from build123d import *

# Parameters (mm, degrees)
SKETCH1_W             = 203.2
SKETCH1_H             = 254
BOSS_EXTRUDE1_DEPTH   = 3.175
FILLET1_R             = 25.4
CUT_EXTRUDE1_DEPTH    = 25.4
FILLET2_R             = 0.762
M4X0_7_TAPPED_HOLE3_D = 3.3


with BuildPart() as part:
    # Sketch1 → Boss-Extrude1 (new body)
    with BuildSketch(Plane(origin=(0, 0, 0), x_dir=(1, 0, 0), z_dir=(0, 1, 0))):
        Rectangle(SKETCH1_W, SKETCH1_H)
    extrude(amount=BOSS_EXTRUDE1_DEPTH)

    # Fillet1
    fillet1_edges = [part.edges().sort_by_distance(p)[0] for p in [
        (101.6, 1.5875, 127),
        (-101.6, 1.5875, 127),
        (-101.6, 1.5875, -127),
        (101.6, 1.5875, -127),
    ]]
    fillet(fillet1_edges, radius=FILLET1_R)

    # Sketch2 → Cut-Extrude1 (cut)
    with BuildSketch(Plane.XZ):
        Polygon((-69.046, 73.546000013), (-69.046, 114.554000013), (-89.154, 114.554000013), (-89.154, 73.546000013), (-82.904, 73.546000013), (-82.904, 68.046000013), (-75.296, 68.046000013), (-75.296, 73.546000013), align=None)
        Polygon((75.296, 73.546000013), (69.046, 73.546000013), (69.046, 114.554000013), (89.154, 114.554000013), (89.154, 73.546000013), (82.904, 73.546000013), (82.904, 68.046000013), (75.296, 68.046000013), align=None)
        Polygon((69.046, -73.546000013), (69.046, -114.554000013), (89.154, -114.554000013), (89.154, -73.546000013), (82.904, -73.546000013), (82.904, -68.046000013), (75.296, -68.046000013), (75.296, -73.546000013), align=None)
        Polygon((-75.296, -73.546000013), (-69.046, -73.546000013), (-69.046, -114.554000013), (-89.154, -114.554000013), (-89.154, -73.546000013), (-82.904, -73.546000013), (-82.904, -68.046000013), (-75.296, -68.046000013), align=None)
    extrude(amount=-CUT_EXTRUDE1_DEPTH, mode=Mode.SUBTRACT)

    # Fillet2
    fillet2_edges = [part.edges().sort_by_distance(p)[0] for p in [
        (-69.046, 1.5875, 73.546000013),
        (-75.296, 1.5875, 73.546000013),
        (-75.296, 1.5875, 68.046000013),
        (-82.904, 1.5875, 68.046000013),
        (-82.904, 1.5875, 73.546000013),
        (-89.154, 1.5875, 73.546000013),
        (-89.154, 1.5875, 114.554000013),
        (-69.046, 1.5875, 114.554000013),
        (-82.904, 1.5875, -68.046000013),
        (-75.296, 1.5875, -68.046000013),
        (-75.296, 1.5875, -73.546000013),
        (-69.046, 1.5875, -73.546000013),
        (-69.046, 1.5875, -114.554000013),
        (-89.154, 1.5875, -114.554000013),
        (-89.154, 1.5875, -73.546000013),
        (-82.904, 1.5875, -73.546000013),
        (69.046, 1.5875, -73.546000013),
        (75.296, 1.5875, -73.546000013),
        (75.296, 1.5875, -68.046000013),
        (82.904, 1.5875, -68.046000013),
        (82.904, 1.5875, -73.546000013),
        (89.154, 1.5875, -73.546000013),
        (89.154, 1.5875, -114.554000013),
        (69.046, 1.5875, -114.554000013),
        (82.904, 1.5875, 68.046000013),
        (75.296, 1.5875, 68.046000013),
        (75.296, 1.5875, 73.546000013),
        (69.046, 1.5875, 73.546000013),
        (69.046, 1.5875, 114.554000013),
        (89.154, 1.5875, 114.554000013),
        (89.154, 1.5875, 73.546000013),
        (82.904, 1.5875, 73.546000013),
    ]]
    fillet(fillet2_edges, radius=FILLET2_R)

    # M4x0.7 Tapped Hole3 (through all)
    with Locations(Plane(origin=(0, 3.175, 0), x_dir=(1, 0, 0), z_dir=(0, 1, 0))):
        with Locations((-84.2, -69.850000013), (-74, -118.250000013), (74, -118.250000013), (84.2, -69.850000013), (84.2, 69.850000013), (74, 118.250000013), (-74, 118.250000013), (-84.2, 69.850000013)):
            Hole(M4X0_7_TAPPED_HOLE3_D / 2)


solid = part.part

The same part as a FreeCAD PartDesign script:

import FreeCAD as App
import Part
import Sketcher
Q = App.Units.Quantity


def edges_at(feature, points):
    """Names of the edges that pass closest to the given points."""
    edges = feature.Shape.Edges
    near = lambda p: min(range(len(edges)), key=lambda i: edges[i].distToShape(Part.Vertex(*p))[0])
    return sorted({f"Edge{near(p) + 1}" for p in points})


def add_polygon(sketch, points):
    """Adds a closed chain of lines whose ends are joined by coincident constraints."""
    first, n = sketch.GeometryCount, len(points)
    for a, b in zip(points, points[1:] + points[:1]):
        sketch.addGeometry(Part.LineSegment(App.Vector(*a, 0), App.Vector(*b, 0)), False)
    for i in range(n):
        sketch.addConstraint(Sketcher.Constraint("Coincident", first + i, 2, first + (i + 1) % n, 1))

doc = App.newDocument("Part")
params = doc.addObject("Spreadsheet::Sheet", "Params")
for row, (alias, value) in enumerate([
    ("sketch1_width", "8 in"),
    ("sketch1_height", "10 in"),
    ("pad1_length", "0.125 in"),
    ("fillet_radius", "1 in"),
    ("pocket1_length", "1 in"),
    ("fillet2_radius", "0.03 in"),
    ("hole_diameter", "3.3 mm"),
], start=1):
    params.set(f"A{row}", alias)
    params.set(f"B{row}", "=" + value)
    params.setAlias(f"B{row}", alias)

body = doc.addObject("PartDesign::Body", "Body")

# Sketch on XZ plane
sketch1 = body.newObject("Sketcher::SketchObject", "Sketch")
sketch1.AttachmentSupport = (doc.getObject("XZ_Plane"), [""])
sketch1.MapMode = "FlatFace"
add_polygon(sketch1, [(-102, -127), (-102, 127), (102, 127), (102, -127)])  # lines 0-3
sketch1.addConstraint(Sketcher.Constraint("Vertical", 0))
sketch1.addConstraint(Sketcher.Constraint("Horizontal", 1))
sketch1.addConstraint(Sketcher.Constraint("Vertical", 2))
sketch1.addConstraint(Sketcher.Constraint("Horizontal", 3))
sketch1.addConstraint(Sketcher.Constraint("Symmetric", 0, 2, 2, 2, -1, 1))
sketch1.addConstraint(Sketcher.Constraint("DistanceX", 1, 1, 1, 2, Q("8 in")))
sketch1.addConstraint(Sketcher.Constraint("DistanceY", 0, 1, 0, 2, Q("10 in")))
sketch1.setExpression("Constraints[9]", "Params.sketch1_width")
sketch1.setExpression("Constraints[10]", "Params.sketch1_height")
pad1 = body.newObject("PartDesign::Pad", "Pad")
pad1.Profile = sketch1
pad1.setExpression("Length", "Params.pad1_length")
pad1.Reversed = True
doc.recompute()

fillet = body.newObject("PartDesign::Fillet", "Fillet")
fillet.Base = (pad1, edges_at(pad1, [
    (101.6, 1.587, 127),
    (-101.6, 1.587, 127),
    (-101.6, 1.587, -127),
    (101.6, 1.587, -127),
]))
fillet.setExpression("Radius", "Params.fillet_radius")

# Sketch on XZ plane
sketch2 = body.newObject("Sketcher::SketchObject", "Sketch001")
sketch2.AttachmentSupport = (doc.getObject("XZ_Plane"), [""])
sketch2.MapMode = "FlatFace"
add_polygon(sketch2, [(-69, 74), (-69, 115), (-89, 115), (-89, 74), (-83, 74), (-83, 68), (-75, 68), (-75, 74)])  # lines 0-7
add_polygon(sketch2, [(69, 74), (75, 74), (75, 68), (83, 68), (83, 74), (89, 74), (89, 115), (69, 115)])  # lines 8-15
add_polygon(sketch2, [(69, -74), (69, -115), (89, -115), (89, -74), (83, -74), (83, -68), (75, -68), (75, -74)])  # lines 16-23
add_polygon(sketch2, [(-69, -74), (-75, -74), (-75, -68), (-83, -68), (-83, -74), (-89, -74), (-89, -115), (-69, -115)])  # lines 24-31
sketch2.addConstraint(Sketcher.Constraint("Vertical", 0))
sketch2.addConstraint(Sketcher.Constraint("Horizontal", 1))
sketch2.addConstraint(Sketcher.Constraint("Vertical", 2))
sketch2.addConstraint(Sketcher.Constraint("Horizontal", 3))
sketch2.addConstraint(Sketcher.Constraint("Vertical", 4))
sketch2.addConstraint(Sketcher.Constraint("Horizontal", 5))
sketch2.addConstraint(Sketcher.Constraint("Vertical", 6))
sketch2.addConstraint(Sketcher.Constraint("Horizontal", 7))
sketch2.addConstraint(Sketcher.Constraint("Horizontal", 8))
sketch2.addConstraint(Sketcher.Constraint("Vertical", 9))
sketch2.addConstraint(Sketcher.Constraint("Horizontal", 10))
sketch2.addConstraint(Sketcher.Constraint("Vertical", 11))
sketch2.addConstraint(Sketcher.Constraint("Horizontal", 12))
sketch2.addConstraint(Sketcher.Constraint("Vertical", 13))
sketch2.addConstraint(Sketcher.Constraint("Horizontal", 14))
sketch2.addConstraint(Sketcher.Constraint("Vertical", 15))
sketch2.addConstraint(Sketcher.Constraint("Vertical", 16))
sketch2.addConstraint(Sketcher.Constraint("Horizontal", 17))
sketch2.addConstraint(Sketcher.Constraint("Vertical", 18))
sketch2.addConstraint(Sketcher.Constraint("Horizontal", 19))
sketch2.addConstraint(Sketcher.Constraint("Vertical", 20))
sketch2.addConstraint(Sketcher.Constraint("Horizontal", 21))
sketch2.addConstraint(Sketcher.Constraint("Vertical", 22))
sketch2.addConstraint(Sketcher.Constraint("Horizontal", 23))
sketch2.addConstraint(Sketcher.Constraint("Horizontal", 24))
sketch2.addConstraint(Sketcher.Constraint("Vertical", 25))
sketch2.addConstraint(Sketcher.Constraint("Horizontal", 26))
sketch2.addConstraint(Sketcher.Constraint("Vertical", 27))
sketch2.addConstraint(Sketcher.Constraint("Horizontal", 28))
sketch2.addConstraint(Sketcher.Constraint("Vertical", 29))
sketch2.addConstraint(Sketcher.Constraint("Horizontal", 30))
sketch2.addConstraint(Sketcher.Constraint("Vertical", 31))
sketch2.addConstraint(Sketcher.Constraint("Symmetric", 0, 2, 16, 2, -1, 1))
sketch2.addConstraint(Sketcher.Constraint("Symmetric", 2, 2, 18, 2, -1, 1))
sketch2.addConstraint(Sketcher.Constraint("Symmetric", 4, 2, 20, 2, -1, 1))
sketch2.addConstraint(Sketcher.Constraint("Symmetric", 6, 2, 22, 2, -1, 1))
sketch2.addConstraint(Sketcher.Constraint("Symmetric", 8, 2, 24, 2, -1, 1))
sketch2.addConstraint(Sketcher.Constraint("Symmetric", 10, 2, 26, 2, -1, 1))
sketch2.addConstraint(Sketcher.Constraint("Symmetric", 12, 2, 28, 2, -1, 1))
sketch2.addConstraint(Sketcher.Constraint("Symmetric", 14, 2, 30, 2, -1, 1))
sketch2.addConstraint(Sketcher.Constraint("Symmetric", 6, 2, 8, 2, -2))
sketch2.addConstraint(Sketcher.Constraint("Symmetric", 4, 2, 10, 2, -2))
sketch2.addConstraint(Sketcher.Constraint("Symmetric", 2, 2, 12, 2, -2))
sketch2.addConstraint(Sketcher.Constraint("Symmetric", 0, 2, 14, 2, -2))
sketch2.addConstraint(Sketcher.Constraint("Horizontal", 3, 2, 6, 2))
sketch2.addConstraint(Sketcher.Constraint("Equal", 3, 7))
sketch2.addConstraint(Sketcher.Constraint("DistanceY", -1, 1, 0, 2, Q("4.51 in")))
sketch2.addConstraint(Sketcher.Constraint("DistanceX", 1, 2, -1, 1, Q("3.51 in")))
sketch2.addConstraint(Sketcher.Constraint("DistanceX", 1, 2, 1, 1, Q("20.108 mm")))
sketch2.addConstraint(Sketcher.Constraint("DistanceX", 3, 1, 3, 2, Q("6.25 mm")))
sketch2.addConstraint(Sketcher.Constraint("DistanceY", 0, 1, 0, 2, Q("41.008 mm")))
sketch2.addConstraint(Sketcher.Constraint("DistanceY", 4, 2, 4, 1, Q("5.5 mm")))
pocket1 = body.newObject("PartDesign::Pocket", "Pocket")
pocket1.Profile = sketch2
pocket1.setExpression("Length", "Params.pocket1_length")
doc.recompute()

fillet2 = body.newObject("PartDesign::Fillet", "Fillet001")
fillet2.Base = (pocket1, edges_at(pocket1, [
    (-69.046, 1.587, 73.546),
    (-75.296, 1.587, 73.546),
    (-75.296, 1.587, 68.046),
    (-82.904, 1.587, 68.046),
    (-82.904, 1.587, 73.546),
    (-89.154, 1.587, 73.546),
    (-89.154, 1.587, 114.554),
    (-69.046, 1.587, 114.554),
    (-82.904, 1.587, -68.046),
    (-75.296, 1.587, -68.046),
    (-75.296, 1.587, -73.546),
    (-69.046, 1.587, -73.546),
    (-69.046, 1.587, -114.554),
    (-89.154, 1.587, -114.554),
    (-89.154, 1.587, -73.546),
    (-82.904, 1.587, -73.546),
    (69.046, 1.587, -73.546),
    (75.296, 1.587, -73.546),
    (75.296, 1.587, -68.046),
    (82.904, 1.587, -68.046),
    (82.904, 1.587, -73.546),
    (89.154, 1.587, -73.546),
    (89.154, 1.587, -114.554),
    (69.046, 1.587, -114.554),
    (82.904, 1.587, 68.046),
    (75.296, 1.587, 68.046),
    (75.296, 1.587, 73.546),
    (69.046, 1.587, 73.546),
    (69.046, 1.587, 114.554),
    (89.154, 1.587, 114.554),
    (89.154, 1.587, 73.546),
    (82.904, 1.587, 73.546),
]))
fillet2.setExpression("Radius", "Params.fillet2_radius")

# Sketch on XZ plane
sketch3 = body.newObject("Sketcher::SketchObject", "Sketch002")
sketch3.AttachmentSupport = (doc.getObject("XZ_Plane"), [""])
sketch3.MapMode = "FlatFace"
sketch3.AttachmentOffset = App.Placement(App.Vector(0, 0, -0.125 * 25.4), App.Rotation())
sketch3.addGeometry(Part.Circle(App.Vector(-84.2, 69.9, 0), App.Vector(0, 0, 1), 1.6), False)
sketch3.addGeometry(Part.Circle(App.Vector(-74, 118.3, 0), App.Vector(0, 0, 1), 1.6), False)
sketch3.addGeometry(Part.Circle(App.Vector(74, 118.3, 0), App.Vector(0, 0, 1), 1.6), False)
sketch3.addGeometry(Part.Circle(App.Vector(84.2, 69.9, 0), App.Vector(0, 0, 1), 1.6), False)
sketch3.addGeometry(Part.Circle(App.Vector(84.2, -69.9, 0), App.Vector(0, 0, 1), 1.6), False)
sketch3.addGeometry(Part.Circle(App.Vector(74, -118.3, 0), App.Vector(0, 0, 1), 1.6), False)
sketch3.addGeometry(Part.Circle(App.Vector(-74, -118.3, 0), App.Vector(0, 0, 1), 1.6), False)
sketch3.addGeometry(Part.Circle(App.Vector(-84.2, -69.9, 0), App.Vector(0, 0, 1), 1.6), False)
sketch3.addConstraint(Sketcher.Constraint("Equal", 0, 1))
sketch3.addConstraint(Sketcher.Constraint("Equal", 1, 2))
sketch3.addConstraint(Sketcher.Constraint("Equal", 2, 3))
sketch3.addConstraint(Sketcher.Constraint("Equal", 3, 4))
sketch3.addConstraint(Sketcher.Constraint("Equal", 4, 5))
sketch3.addConstraint(Sketcher.Constraint("Equal", 5, 6))
sketch3.addConstraint(Sketcher.Constraint("Equal", 6, 7))
sketch3.addConstraint(Sketcher.Constraint("Symmetric", 0, 3, 4, 3, -1, 1))
sketch3.addConstraint(Sketcher.Constraint("Symmetric", 1, 3, 5, 3, -1, 1))
sketch3.addConstraint(Sketcher.Constraint("Symmetric", 2, 3, 6, 3, -1, 1))
sketch3.addConstraint(Sketcher.Constraint("Symmetric", 3, 3, 7, 3, -1, 1))
sketch3.addConstraint(Sketcher.Constraint("Symmetric", 1, 3, 2, 3, -2))
sketch3.addConstraint(Sketcher.Constraint("Symmetric", 0, 3, 3, 3, -2))
sketch3.addConstraint(Sketcher.Constraint("DistanceY", 4, 3, 3, 3, Q("5.5 in")))
sketch3.addConstraint(Sketcher.Constraint("Diameter", 0, Q("3.3 mm")))
sketch3.addConstraint(Sketcher.Constraint("DistanceX", 0, 3, -1, 1, Q("84.2 mm")))
sketch3.addConstraint(Sketcher.Constraint("DistanceX", 1, 3, -1, 1, Q("74 mm")))
sketch3.addConstraint(Sketcher.Constraint("DistanceY", -1, 1, 1, 3, Q("118.25 mm")))
doc.recompute()
hole = body.newObject("PartDesign::Hole", "Hole")
hole.Profile = sketch3
hole.ThreadType = "None"
hole.setExpression("Diameter", "Params.hole_diameter")
hole.DepthType = "ThroughAll"
hole.Reversed = True

doc.recompute()
